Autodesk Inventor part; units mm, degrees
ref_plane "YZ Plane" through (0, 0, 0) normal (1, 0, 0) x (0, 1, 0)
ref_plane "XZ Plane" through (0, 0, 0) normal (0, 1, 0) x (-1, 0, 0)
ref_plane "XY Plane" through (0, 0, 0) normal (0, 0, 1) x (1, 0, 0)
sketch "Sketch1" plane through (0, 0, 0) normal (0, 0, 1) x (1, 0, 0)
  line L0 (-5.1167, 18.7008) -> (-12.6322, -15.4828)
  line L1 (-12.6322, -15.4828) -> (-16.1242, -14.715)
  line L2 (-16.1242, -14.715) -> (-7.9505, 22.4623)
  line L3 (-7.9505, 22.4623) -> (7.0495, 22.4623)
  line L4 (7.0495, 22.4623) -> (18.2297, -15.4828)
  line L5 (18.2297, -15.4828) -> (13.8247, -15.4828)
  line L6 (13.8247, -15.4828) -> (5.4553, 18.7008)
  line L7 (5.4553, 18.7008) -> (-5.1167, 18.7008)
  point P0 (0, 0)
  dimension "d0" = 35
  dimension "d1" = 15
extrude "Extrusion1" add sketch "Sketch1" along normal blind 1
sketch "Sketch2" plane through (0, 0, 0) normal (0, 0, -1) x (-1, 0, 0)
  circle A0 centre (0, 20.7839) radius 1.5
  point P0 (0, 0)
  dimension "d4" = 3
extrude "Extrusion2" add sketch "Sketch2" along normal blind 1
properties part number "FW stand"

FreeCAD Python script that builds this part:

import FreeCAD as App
import Part
import Sketcher

V = App.Vector

doc = App.newDocument("Part")
params = doc.addObject("Spreadsheet::Sheet", "Params")
for row, (alias, value) in enumerate([
    ("sketch1_width", "15 mm"),
    ("sketch1_length", "35 mm"),
    ("pad1_length", "1 mm"),
    ("sketch2_diameter", "3 mm"),
    ("pad2_length", "1 mm"),
], start=1):
    params.set(f"A{row}", alias)
    params.set(f"B{row}", "=" + value)
    params.setAlias(f"B{row}", alias)

body = doc.addObject("PartDesign::Body", "Body")

# Sketch on XY plane
sketch1 = doc.addObject("Sketcher::SketchObject", "Sketch")
body.addObject(sketch1)
sketch1.AttachmentSupport = (doc.XY_Plane, [""])
sketch1.MapMode = "FlatFace"
sketch1.addGeometry(Part.LineSegment(V(-12.6322, -15.4828, 0), V(-5.1167, 18.7008, 0)), False)
sketch1.addGeometry(Part.LineSegment(V(-5.1167, 18.7008, 0), V(5.4553, 18.7008, 0)), False)
sketch1.addGeometry(Part.LineSegment(V(5.4553, 18.7008, 0), V(13.8247, -15.4828, 0)), False)
sketch1.addGeometry(Part.LineSegment(V(13.8247, -15.4828, 0), V(18.2297, -15.4828, 0)), False)
sketch1.addGeometry(Part.LineSegment(V(18.2297, -15.4828, 0), V(7.0495, 22.4623, 0)), False)
sketch1.addGeometry(Part.LineSegment(V(7.0495, 22.4623, 0), V(-7.9505, 22.4623, 0)), False)
sketch1.addGeometry(Part.LineSegment(V(-7.9505, 22.4623, 0), V(-16.1242, -14.715, 0)), False)
sketch1.addGeometry(Part.LineSegment(V(-16.1242, -14.715, 0), V(-12.6322, -15.4828, 0)), False)
sketch1.addConstraint(Sketcher.Constraint("Coincident", 0, 2, 1, 1))
sketch1.addConstraint(Sketcher.Constraint("Coincident", 1, 2, 2, 1))
sketch1.addConstraint(Sketcher.Constraint("Coincident", 2, 2, 3, 1))
sketch1.addConstraint(Sketcher.Constraint("Coincident", 3, 2, 4, 1))
sketch1.addConstraint(Sketcher.Constraint("Coincident", 4, 2, 5, 1))
sketch1.addConstraint(Sketcher.Constraint("Coincident", 5, 2, 6, 1))
sketch1.addConstraint(Sketcher.Constraint("Coincident", 6, 2, 7, 1))
sketch1.addConstraint(Sketcher.Constraint("Coincident", 7, 2, 0, 1))
sketch1.addConstraint(Sketcher.Constraint("Horizontal", 1))
sketch1.addConstraint(Sketcher.Constraint("Horizontal", 3))
sketch1.addConstraint(Sketcher.Constraint("Horizontal", 5))
sketch1.addConstraint(Sketcher.Constraint("DistanceX", 5, 2, 5, 1, 15.0))
sketch1.addConstraint(Sketcher.Constraint("Distance", 0, 35.0))
sketch1.addConstraint(Sketcher.Constraint("DistanceX", 1, 1, 1, 2, 10.572))
sketch1.addConstraint(Sketcher.Constraint("DistanceX", 3, 1, 3, 2, 4.405))
sketch1.addConstraint(Sketcher.Constraint("Distance", 4, 39.558))
sketch1.addConstraint(Sketcher.Constraint("DistanceY", 6, 2, -1, 1, 14.715))
sketch1.addConstraint(Sketcher.Constraint("DistanceY", 2, 2, 4, 2, 37.945))
sketch1.addConstraint(Sketcher.Constraint("DistanceX", 6, 2, 2, 2, 29.949))
sketch1.addConstraint(Sketcher.Constraint("DistanceX", 6, 2, 7, 2, 3.492))
sketch1.addConstraint(Sketcher.Constraint("DistanceY", 7, 2, 5, 2, 37.945))
sketch1.addConstraint(Sketcher.Constraint("Distance", 2, 35.1933))
sketch1.addConstraint(Sketcher.Constraint("Distance", 6, 38.0652))
sketch1.addConstraint(Sketcher.Constraint("DistanceX", 0, 2, -1, 1, 5.1167))
sketch1.setExpression("Constraints[11]", "Params.sketch1_width")
sketch1.setExpression("Constraints[12]", "Params.sketch1_length")
pad1 = doc.addObject("PartDesign::Pad", "Pad")
body.addObject(pad1)
pad1.Profile = sketch1
pad1.setExpression("Length", "Params.pad1_length")

# Sketch on XY plane
sketch2 = doc.addObject("Sketcher::SketchObject", "Sketch001")
body.addObject(sketch2)
sketch2.AttachmentSupport = (doc.XY_Plane, [""])
sketch2.MapMode = "FlatFace"
sketch2.addGeometry(Part.Circle(V(0, 20.8, 0), V(0, 0, 1), 1.5), False)
sketch2.addConstraint(Sketcher.Constraint("PointOnObject", 0, 3, -2))
sketch2.addConstraint(Sketcher.Constraint("Diameter", 0, 3.0))
sketch2.addConstraint(Sketcher.Constraint("DistanceY", -1, 1, 0, 3, 20.784))
sketch2.setExpression("Constraints[1]", "Params.sketch2_diameter")
pad2 = doc.addObject("PartDesign::Pad", "Pad001")
body.addObject(pad2)
pad2.Profile = sketch2
pad2.setExpression("Length", "Params.pad2_length")
pad2.Reversed = True

doc.recompute()
